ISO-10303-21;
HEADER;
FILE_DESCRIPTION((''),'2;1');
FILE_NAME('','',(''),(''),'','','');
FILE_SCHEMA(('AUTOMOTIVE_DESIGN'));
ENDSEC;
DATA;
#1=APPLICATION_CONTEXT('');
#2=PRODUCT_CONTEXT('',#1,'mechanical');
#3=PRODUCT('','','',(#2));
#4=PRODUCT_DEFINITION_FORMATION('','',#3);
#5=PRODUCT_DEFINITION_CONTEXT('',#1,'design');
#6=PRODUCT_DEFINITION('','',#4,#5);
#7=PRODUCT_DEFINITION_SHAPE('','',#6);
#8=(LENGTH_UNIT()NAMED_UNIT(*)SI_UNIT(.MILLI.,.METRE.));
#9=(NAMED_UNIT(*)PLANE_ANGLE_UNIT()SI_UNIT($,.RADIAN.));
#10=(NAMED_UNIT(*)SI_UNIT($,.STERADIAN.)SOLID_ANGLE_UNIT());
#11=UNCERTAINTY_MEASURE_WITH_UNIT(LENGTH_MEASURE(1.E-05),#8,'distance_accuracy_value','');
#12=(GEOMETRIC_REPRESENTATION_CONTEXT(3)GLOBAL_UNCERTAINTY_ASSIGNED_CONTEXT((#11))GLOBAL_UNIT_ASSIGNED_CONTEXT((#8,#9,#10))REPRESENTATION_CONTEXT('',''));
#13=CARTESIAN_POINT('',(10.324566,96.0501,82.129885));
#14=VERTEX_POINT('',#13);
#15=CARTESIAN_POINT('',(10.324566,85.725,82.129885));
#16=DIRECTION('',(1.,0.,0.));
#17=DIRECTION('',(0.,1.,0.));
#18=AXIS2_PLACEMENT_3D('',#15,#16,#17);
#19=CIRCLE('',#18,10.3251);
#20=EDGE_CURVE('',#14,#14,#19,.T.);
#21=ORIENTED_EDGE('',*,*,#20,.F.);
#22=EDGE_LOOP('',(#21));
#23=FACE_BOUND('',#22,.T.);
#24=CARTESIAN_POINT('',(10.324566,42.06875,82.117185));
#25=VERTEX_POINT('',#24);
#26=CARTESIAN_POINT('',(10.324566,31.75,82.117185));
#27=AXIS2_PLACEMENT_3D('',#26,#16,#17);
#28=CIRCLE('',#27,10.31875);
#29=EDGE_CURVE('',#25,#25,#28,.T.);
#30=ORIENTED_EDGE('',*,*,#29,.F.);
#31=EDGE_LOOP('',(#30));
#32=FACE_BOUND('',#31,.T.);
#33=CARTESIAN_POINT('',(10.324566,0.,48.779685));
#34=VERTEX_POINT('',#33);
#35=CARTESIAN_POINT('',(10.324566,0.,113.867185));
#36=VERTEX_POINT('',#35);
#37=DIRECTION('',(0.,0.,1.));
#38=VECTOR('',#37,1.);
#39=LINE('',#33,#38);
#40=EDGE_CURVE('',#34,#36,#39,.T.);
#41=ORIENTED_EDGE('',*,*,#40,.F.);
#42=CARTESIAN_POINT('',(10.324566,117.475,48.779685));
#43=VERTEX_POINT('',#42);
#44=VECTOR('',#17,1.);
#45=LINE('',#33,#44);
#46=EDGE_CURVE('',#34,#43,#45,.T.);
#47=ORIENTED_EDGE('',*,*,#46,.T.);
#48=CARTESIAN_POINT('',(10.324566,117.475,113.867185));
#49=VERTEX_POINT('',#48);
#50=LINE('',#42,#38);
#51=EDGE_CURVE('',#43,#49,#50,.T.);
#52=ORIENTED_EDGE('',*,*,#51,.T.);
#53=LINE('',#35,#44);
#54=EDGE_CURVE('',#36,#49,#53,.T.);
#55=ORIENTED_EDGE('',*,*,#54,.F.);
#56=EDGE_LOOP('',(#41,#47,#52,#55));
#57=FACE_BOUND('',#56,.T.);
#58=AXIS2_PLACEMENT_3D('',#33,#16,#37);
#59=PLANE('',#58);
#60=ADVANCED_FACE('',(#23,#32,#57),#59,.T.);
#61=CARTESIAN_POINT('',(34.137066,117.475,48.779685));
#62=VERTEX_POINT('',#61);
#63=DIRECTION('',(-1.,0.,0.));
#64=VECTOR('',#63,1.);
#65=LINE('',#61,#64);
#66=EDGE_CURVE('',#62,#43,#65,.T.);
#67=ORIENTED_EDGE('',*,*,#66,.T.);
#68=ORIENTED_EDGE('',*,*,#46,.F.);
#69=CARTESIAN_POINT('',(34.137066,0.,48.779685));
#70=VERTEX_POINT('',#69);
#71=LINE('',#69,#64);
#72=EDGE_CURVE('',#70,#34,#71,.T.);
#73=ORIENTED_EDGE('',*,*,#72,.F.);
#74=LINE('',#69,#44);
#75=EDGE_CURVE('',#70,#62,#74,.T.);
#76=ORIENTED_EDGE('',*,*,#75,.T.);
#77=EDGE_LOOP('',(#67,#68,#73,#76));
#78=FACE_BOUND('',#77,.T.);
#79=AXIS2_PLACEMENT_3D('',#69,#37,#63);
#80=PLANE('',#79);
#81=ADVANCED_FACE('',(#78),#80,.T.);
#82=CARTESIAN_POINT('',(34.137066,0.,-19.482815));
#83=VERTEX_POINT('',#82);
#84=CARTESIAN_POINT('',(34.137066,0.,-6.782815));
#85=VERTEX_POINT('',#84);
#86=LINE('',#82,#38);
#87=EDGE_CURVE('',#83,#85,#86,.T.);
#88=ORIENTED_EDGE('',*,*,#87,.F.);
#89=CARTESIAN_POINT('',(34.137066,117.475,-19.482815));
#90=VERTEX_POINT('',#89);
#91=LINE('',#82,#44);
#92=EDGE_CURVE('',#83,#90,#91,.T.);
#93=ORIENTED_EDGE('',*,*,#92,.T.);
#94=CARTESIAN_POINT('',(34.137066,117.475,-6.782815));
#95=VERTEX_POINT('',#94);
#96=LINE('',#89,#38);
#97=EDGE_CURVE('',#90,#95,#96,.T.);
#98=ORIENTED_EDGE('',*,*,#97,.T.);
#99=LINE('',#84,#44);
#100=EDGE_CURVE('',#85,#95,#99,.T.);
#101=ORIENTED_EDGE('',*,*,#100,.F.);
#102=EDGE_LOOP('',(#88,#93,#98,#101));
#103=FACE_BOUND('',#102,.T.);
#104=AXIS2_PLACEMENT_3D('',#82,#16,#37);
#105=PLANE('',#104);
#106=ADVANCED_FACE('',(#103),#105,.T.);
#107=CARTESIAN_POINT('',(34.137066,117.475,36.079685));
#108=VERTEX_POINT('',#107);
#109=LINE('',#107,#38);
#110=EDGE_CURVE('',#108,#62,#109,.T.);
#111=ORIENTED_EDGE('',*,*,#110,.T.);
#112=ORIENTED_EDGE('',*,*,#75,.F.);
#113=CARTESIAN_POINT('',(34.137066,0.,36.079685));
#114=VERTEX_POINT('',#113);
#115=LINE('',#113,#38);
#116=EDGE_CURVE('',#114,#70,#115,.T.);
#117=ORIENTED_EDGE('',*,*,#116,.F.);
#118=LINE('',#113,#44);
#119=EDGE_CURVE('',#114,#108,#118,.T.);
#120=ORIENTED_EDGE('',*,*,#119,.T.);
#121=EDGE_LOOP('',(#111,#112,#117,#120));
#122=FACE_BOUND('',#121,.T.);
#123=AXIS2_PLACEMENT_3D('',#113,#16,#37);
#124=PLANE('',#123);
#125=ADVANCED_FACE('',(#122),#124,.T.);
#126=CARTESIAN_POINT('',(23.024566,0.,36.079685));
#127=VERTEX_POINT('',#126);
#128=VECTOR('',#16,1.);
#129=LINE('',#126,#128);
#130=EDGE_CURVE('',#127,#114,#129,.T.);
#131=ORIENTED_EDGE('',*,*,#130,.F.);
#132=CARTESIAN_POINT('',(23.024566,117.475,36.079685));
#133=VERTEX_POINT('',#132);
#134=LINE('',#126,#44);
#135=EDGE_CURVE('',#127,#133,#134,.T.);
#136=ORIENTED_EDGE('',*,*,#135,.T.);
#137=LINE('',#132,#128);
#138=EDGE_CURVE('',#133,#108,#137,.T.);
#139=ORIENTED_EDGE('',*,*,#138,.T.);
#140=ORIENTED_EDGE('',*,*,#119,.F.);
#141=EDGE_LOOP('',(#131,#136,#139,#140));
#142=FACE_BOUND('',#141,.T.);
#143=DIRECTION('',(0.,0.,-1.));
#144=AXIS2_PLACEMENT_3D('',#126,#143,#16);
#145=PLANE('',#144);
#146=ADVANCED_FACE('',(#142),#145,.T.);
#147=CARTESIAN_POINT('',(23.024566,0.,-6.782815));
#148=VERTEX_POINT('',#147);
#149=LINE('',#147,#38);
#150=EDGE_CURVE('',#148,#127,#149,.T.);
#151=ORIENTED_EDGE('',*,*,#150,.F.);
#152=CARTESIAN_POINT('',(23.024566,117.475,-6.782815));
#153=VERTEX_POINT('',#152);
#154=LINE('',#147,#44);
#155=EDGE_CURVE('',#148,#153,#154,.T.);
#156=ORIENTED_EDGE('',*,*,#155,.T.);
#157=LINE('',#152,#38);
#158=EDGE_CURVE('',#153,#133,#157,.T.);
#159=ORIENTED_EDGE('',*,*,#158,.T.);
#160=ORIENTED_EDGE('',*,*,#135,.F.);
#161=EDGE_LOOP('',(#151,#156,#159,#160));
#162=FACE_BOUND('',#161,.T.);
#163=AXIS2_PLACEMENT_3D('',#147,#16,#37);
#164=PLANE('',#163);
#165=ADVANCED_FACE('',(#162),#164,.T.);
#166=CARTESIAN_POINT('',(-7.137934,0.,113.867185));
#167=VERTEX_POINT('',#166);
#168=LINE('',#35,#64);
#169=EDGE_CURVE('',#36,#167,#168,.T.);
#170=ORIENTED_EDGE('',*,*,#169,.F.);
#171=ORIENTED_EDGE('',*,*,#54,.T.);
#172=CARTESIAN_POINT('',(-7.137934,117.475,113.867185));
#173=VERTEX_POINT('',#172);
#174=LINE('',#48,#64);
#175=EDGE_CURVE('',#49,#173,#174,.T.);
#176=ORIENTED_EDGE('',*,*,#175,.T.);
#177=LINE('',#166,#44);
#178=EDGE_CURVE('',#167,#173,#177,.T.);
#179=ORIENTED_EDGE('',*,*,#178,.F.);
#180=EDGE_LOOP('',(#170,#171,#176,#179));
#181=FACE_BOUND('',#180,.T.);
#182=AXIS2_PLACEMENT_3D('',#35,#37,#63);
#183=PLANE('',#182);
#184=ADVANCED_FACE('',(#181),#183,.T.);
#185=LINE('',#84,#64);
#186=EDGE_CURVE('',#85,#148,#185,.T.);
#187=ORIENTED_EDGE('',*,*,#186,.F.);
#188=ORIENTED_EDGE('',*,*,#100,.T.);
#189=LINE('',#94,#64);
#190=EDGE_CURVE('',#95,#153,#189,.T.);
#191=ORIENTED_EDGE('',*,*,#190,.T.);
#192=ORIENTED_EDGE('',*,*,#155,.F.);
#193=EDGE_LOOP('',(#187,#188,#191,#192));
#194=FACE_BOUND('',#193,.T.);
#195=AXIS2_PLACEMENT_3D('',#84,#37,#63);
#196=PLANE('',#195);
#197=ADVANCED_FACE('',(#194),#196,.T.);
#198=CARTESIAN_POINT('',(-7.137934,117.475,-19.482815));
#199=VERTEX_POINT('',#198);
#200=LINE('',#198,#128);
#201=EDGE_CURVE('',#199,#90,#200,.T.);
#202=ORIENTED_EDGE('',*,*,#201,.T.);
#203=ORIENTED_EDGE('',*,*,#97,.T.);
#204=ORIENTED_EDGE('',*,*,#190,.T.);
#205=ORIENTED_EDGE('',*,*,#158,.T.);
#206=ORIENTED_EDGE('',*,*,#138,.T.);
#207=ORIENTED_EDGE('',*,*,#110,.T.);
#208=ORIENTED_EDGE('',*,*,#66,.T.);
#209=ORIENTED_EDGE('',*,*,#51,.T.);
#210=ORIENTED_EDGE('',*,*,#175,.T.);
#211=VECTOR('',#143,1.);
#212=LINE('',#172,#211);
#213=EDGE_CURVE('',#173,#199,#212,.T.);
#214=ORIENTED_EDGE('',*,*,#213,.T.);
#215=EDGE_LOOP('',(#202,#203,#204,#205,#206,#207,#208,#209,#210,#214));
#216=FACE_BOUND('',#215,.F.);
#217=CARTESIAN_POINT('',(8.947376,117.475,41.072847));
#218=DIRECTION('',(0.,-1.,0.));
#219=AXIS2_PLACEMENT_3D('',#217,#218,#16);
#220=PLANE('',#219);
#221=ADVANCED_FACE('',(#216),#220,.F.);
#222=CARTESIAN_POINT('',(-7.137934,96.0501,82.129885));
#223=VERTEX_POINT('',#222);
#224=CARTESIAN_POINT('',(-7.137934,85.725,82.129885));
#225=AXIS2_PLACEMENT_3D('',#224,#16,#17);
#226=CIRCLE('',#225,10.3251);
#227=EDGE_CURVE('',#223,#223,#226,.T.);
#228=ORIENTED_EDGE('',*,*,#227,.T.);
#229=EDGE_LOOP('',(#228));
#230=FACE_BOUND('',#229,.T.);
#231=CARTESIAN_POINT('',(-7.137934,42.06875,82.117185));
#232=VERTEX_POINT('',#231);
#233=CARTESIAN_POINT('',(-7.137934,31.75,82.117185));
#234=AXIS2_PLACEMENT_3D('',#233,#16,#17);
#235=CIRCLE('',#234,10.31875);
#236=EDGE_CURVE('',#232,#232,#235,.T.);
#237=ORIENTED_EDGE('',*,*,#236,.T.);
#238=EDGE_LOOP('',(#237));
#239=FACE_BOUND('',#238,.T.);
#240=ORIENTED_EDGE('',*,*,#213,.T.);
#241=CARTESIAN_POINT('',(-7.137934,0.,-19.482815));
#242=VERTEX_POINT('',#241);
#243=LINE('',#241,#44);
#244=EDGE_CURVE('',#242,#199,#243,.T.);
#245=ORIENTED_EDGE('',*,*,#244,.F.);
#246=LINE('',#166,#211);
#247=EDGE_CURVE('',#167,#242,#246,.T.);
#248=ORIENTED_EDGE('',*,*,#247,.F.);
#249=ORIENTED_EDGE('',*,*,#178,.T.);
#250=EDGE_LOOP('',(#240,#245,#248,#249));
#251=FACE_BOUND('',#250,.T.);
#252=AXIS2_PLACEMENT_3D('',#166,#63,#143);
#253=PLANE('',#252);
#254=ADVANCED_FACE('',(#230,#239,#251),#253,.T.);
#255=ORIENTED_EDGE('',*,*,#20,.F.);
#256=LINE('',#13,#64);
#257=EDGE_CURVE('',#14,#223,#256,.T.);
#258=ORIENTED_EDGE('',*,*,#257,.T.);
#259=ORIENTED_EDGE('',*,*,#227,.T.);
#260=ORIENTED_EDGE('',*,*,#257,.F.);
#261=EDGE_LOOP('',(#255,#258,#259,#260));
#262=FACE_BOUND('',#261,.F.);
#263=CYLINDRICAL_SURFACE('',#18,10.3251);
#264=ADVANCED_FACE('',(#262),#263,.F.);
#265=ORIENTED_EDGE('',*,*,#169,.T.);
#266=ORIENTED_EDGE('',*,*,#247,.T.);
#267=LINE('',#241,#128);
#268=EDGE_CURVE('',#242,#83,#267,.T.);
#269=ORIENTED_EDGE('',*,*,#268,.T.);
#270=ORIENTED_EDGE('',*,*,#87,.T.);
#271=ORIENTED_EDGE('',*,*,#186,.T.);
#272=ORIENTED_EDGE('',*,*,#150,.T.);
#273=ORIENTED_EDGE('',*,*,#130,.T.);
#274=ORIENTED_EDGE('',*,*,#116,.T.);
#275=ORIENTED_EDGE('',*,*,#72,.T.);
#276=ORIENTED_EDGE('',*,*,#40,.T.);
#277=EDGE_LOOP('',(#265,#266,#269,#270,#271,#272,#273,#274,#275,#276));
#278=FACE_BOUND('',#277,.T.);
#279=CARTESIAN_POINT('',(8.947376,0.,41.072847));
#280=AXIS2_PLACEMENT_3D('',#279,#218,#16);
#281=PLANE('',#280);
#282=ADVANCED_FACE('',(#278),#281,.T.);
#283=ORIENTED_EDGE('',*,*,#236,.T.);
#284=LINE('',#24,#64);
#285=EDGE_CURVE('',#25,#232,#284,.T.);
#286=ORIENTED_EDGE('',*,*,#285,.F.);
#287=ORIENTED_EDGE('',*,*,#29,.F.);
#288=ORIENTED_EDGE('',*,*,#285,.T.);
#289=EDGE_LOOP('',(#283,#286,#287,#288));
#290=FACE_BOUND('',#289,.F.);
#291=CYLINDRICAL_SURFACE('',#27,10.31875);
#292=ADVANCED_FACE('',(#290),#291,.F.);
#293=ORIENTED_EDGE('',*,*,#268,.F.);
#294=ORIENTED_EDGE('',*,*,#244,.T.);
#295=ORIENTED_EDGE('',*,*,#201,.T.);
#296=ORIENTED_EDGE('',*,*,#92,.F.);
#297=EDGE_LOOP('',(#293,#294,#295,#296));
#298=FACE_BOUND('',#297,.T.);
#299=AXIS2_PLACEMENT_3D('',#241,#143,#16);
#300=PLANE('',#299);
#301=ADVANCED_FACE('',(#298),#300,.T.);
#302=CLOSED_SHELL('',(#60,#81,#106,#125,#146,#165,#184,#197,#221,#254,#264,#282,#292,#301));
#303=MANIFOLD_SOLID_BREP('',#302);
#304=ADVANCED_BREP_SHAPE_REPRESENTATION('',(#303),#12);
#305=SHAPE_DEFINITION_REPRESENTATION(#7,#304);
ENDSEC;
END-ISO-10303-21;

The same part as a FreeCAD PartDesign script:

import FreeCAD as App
import Part
import Sketcher
Q = App.Units.Quantity

doc = App.newDocument("Part")
params = doc.addObject("Spreadsheet::Sheet", "Params")
for row, (alias, value) in enumerate([
    ("sketch1_height", "0.5 in"),
    ("sketch1_height2", "5.25 in"),
    ("sketch1_width", "0.6875 in"),
    ("sketch1_width2", "1.625 in"),
    ("sketch1_height3", "2.5625 in"),
    ("pad1_length", "4.625 in"),
    ("sketch2_diameter", "0.8125 in"),
    ("sketch2_diameter2", "0.813 in"),
    ("pocket1_length", "0.88 in"),
], start=1):
    params.set(f"A{row}", alias)
    params.set(f"B{row}", "=" + value)
    params.setAlias(f"B{row}", alias)

body = doc.addObject("PartDesign::Body", "Body")

# Sketch on XZ plane
sketch1 = body.newObject("Sketcher::SketchObject", "Sketch")
sketch1.AttachmentSupport = (doc.getObject("XZ_Plane"), [""])
sketch1.MapMode = "FlatFace"
sketch1.addGeometry(Part.LineSegment(App.Vector(10, 49, 0), App.Vector(10, 114, 0)), False)
sketch1.addGeometry(Part.LineSegment(App.Vector(10, 114, 0), App.Vector(-7, 114, 0)), False)
sketch1.addGeometry(Part.LineSegment(App.Vector(-7, 114, 0), App.Vector(-7, -19, 0)), False)
sketch1.addGeometry(Part.LineSegment(App.Vector(-7, -19, 0), App.Vector(34, -19, 0)), False)
sketch1.addGeometry(Part.LineSegment(App.Vector(34, -19, 0), App.Vector(34, -7, 0)), False)
sketch1.addGeometry(Part.LineSegment(App.Vector(34, -7, 0), App.Vector(23, -7, 0)), False)
sketch1.addGeometry(Part.LineSegment(App.Vector(23, -7, 0), App.Vector(23, 36, 0)), False)
sketch1.addGeometry(Part.LineSegment(App.Vector(23, 36, 0), App.Vector(34, 36, 0)), False)
sketch1.addGeometry(Part.LineSegment(App.Vector(34, 36, 0), App.Vector(34, 49, 0)), False)
sketch1.addGeometry(Part.LineSegment(App.Vector(34, 49, 0), App.Vector(10, 49, 0)), False)
sketch1.addConstraint(Sketcher.Constraint("Coincident", 0, 2, 1, 1))
sketch1.addConstraint(Sketcher.Constraint("Coincident", 1, 2, 2, 1))
sketch1.addConstraint(Sketcher.Constraint("Coincident", 2, 2, 3, 1))
sketch1.addConstraint(Sketcher.Constraint("Coincident", 3, 2, 4, 1))
sketch1.addConstraint(Sketcher.Constraint("Coincident", 4, 2, 5, 1))
sketch1.addConstraint(Sketcher.Constraint("Coincident", 5, 2, 6, 1))
sketch1.addConstraint(Sketcher.Constraint("Coincident", 6, 2, 7, 1))
sketch1.addConstraint(Sketcher.Constraint("Coincident", 7, 2, 8, 1))
sketch1.addConstraint(Sketcher.Constraint("Coincident", 8, 2, 9, 1))
sketch1.addConstraint(Sketcher.Constraint("Coincident", 9, 2, 0, 1))
sketch1.addConstraint(Sketcher.Constraint("Vertical", 0))
sketch1.addConstraint(Sketcher.Constraint("Horizontal", 1))
sketch1.addConstraint(Sketcher.Constraint("Vertical", 2))
sketch1.addConstraint(Sketcher.Constraint("Horizontal", 3))
sketch1.addConstraint(Sketcher.Constraint("Vertical", 4))
sketch1.addConstraint(Sketcher.Constraint("Horizontal", 5))
sketch1.addConstraint(Sketcher.Constraint("Vertical", 6))
sketch1.addConstraint(Sketcher.Constraint("Horizontal", 7))
sketch1.addConstraint(Sketcher.Constraint("Vertical", 8))
sketch1.addConstraint(Sketcher.Constraint("Horizontal", 9))
sketch1.addConstraint(Sketcher.Constraint("Vertical", 4, 2, 7, 2))
sketch1.addConstraint(Sketcher.Constraint("Equal", 4, 8))
sketch1.addConstraint(Sketcher.Constraint("DistanceY", 4, 1, 4, 2, Q("0.5 in")))
sketch1.addConstraint(Sketcher.Constraint("DistanceY", 2, 2, 2, 1, Q("5.25 in")))
sketch1.addConstraint(Sketcher.Constraint("DistanceX", 0, 2, 5, 2, Q("0.5 in")))
sketch1.addConstraint(Sketcher.Constraint("DistanceX", 1, 2, 1, 1, Q("0.6875 in")))
sketch1.addConstraint(Sketcher.Constraint("DistanceX", 3, 1, 3, 2, Q("1.625 in")))
sketch1.addConstraint(Sketcher.Constraint("DistanceY", 0, 1, 0, 2, Q("2.5625 in")))
sketch1.addConstraint(Sketcher.Constraint("DistanceX", -1, 1, 0, 2, Q("10.324566 mm")))
sketch1.addConstraint(Sketcher.Constraint("DistanceY", -1, 1, 0, 2, Q("113.867185 mm")))
sketch1.setExpression("Constraints[22]", "Params.sketch1_height")
sketch1.setExpression("Constraints[23]", "Params.sketch1_height2")
sketch1.setExpression("Constraints[25]", "Params.sketch1_width")
sketch1.setExpression("Constraints[26]", "Params.sketch1_width2")
sketch1.setExpression("Constraints[27]", "Params.sketch1_height3")
pad1 = body.newObject("PartDesign::Pad", "Pad")
pad1.Profile = sketch1
pad1.setExpression("Length", "Params.pad1_length")
pad1.Reversed = True

# Sketch on YZ plane
sketch2 = body.newObject("Sketcher::SketchObject", "Sketch001")
sketch2.AttachmentSupport = (doc.getObject("YZ_Plane"), [""])
sketch2.MapMode = "FlatFace"
sketch2.AttachmentOffset = App.Placement(App.Vector(0, 0, 10.324566), App.Rotation())
sketch2.addGeometry(Part.Circle(App.Vector(32, 82, 0), App.Vector(0, 0, 1), 10), False)
sketch2.addGeometry(Part.Circle(App.Vector(86, 82, 0), App.Vector(0, 0, 1), 10), False)
sketch2.addConstraint(Sketcher.Constraint("Diameter", 0, Q("0.8125 in")))
sketch2.addConstraint(Sketcher.Constraint("Diameter", 1, Q("0.813 in")))
sketch2.addConstraint(Sketcher.Constraint("DistanceX", -1, 1, 0, 3, Q("1.25 in")))
sketch2.addConstraint(Sketcher.Constraint("DistanceX", -1, 1, 1, 3, Q("3.375 in")))
sketch2.addConstraint(Sketcher.Constraint("DistanceY", 0, 3, 1, 3, Q("0.0005 in")))
sketch2.addConstraint(Sketcher.Constraint("DistanceY", -1, 1, 0, 3, Q("82.117185 mm")))
sketch2.setExpression("Constraints[0]", "Params.sketch2_diameter")
sketch2.setExpression("Constraints[1]", "Params.sketch2_diameter2")
pocket1 = body.newObject("PartDesign::Pocket", "Pocket")
pocket1.Profile = sketch2
pocket1.setExpression("Length", "Params.pocket1_length")

doc.recompute()
